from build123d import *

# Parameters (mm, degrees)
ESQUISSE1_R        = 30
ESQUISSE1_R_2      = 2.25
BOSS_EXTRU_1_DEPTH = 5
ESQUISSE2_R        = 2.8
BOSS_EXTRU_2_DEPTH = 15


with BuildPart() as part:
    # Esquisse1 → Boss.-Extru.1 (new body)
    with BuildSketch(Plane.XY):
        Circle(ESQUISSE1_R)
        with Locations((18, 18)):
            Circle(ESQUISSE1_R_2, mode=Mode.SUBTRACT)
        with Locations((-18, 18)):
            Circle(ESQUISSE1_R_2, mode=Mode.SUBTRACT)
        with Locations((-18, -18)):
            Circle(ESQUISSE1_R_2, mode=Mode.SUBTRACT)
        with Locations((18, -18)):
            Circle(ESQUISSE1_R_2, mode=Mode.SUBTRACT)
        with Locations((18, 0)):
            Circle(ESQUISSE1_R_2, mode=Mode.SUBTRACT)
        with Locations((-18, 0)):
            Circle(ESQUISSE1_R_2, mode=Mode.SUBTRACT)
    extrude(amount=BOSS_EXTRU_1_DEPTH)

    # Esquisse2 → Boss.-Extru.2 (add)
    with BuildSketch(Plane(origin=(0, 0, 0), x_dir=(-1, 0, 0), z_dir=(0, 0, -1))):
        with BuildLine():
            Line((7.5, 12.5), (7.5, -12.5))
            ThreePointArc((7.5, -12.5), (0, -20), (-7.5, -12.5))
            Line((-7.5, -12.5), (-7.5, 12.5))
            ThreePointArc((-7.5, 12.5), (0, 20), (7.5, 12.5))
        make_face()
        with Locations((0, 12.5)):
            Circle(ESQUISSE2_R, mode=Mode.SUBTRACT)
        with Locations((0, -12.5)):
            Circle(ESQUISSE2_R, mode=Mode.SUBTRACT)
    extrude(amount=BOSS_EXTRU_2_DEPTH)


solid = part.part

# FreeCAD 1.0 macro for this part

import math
import FreeCAD as App
import Part
import Sketcher

V = App.Vector
Q = App.Units.Quantity

doc = App.newDocument("Part")
body = doc.addObject("PartDesign::Body", "Body")

sketch1 = body.newObject("Sketcher::SketchObject", "Sketch")
sketch1.AttachmentSupport = (doc.getObject("XY_Plane"), [""])
sketch1.MapMode = "FlatFace"
sketch1.addGeometry(Part.Circle(V(0, 0, 0), V(0, 0, 1), 30), False)
sketch1.addGeometry(Part.Circle(V(-18, -18, 0), V(0, 0, 1), 2.2), False)
sketch1.addGeometry(Part.Circle(V(18, -18, 0), V(0, 0, 1), 2.2), False)
sketch1.addGeometry(Part.Circle(V(-18, 0, 0), V(0, 0, 1), 2.2), False)
sketch1.addGeometry(Part.Circle(V(-18, 18, 0), V(0, 0, 1), 2.2), False)
sketch1.addGeometry(Part.Circle(V(18, 0, 0), V(0, 0, 1), 2.2), False)
sketch1.addGeometry(Part.Circle(V(18, 18, 0), V(0, 0, 1), 2.2), False)
sketch1.addConstraint(Sketcher.Constraint("Coincident", 0, 3, -1, 1))
sketch1.addConstraint(Sketcher.Constraint("Equal", 1, 2))
sketch1.addConstraint(Sketcher.Constraint("Equal", 2, 3))
sketch1.addConstraint(Sketcher.Constraint("Equal", 3, 4))
sketch1.addConstraint(Sketcher.Constraint("Equal", 4, 5))
sketch1.addConstraint(Sketcher.Constraint("Equal", 5, 6))
sketch1.addConstraint(Sketcher.Constraint("Symmetric", 2, 3, 4, 3, -1, 1))
sketch1.addConstraint(Sketcher.Constraint("Symmetric", 3, 3, 5, 3, -1, 1))
sketch1.addConstraint(Sketcher.Constraint("Symmetric", 1, 3, 6, 3, -1, 1))
sketch1.addConstraint(Sketcher.Constraint("Symmetric", 1, 3, 2, 3, -2))
sketch1.addConstraint(Sketcher.Constraint("PointOnObject", 3, 3, -1))
sketch1.addConstraint(Sketcher.Constraint("Vertical", 1, 3, 3, 3))
sketch1.addConstraint(Sketcher.Constraint("Diameter", 0, Q("60 mm")))
sketch1.addConstraint(Sketcher.Constraint("Diameter", 1, Q("4.5 mm")))
sketch1.addConstraint(Sketcher.Constraint("DistanceX", 1, 3, -1, 1, Q("18 mm")))
sketch1.addConstraint(Sketcher.Constraint("DistanceY", 1, 3, -1, 1, Q("18 mm")))
pad1 = body.newObject("PartDesign::Pad", "Pad")
pad1.Profile = sketch1
pad1.Length = 5

sketch2 = body.newObject("Sketcher::SketchObject", "Sketch001")
sketch2.AttachmentSupport = (doc.getObject("XY_Plane"), [""])
sketch2.MapMode = "FlatFace"
sketch2.addGeometry(Part.LineSegment(V(-7.5, -12.5, 0), V(-7.5, 12.5, 0)), False)
sketch2.addGeometry(Part.ArcOfCircle(Part.Circle(V(0, 12.5, 0), V(0, 0, 1), 7.5), math.radians(0), math.radians(180)), False)
sketch2.addGeometry(Part.LineSegment(V(7.5, 12.5, 0), V(7.5, -12.5, 0)), False)
sketch2.addGeometry(Part.ArcOfCircle(Part.Circle(V(0, -12.5, 0), V(0, 0, 1), 7.5), math.radians(180), math.radians(360)), False)
sketch2.addGeometry(Part.Circle(V(0, -12.5, 0), V(0, 0, 1), 2.8), False)
sketch2.addGeometry(Part.Circle(V(0, 12.5, 0), V(0, 0, 1), 2.8), False)
sketch2.addConstraint(Sketcher.Constraint("Tangent", 0, 2, 1, 2))
sketch2.addConstraint(Sketcher.Constraint("Tangent", 1, 1, 2, 1))
sketch2.addConstraint(Sketcher.Constraint("Tangent", 2, 2, 3, 2))
sketch2.addConstraint(Sketcher.Constraint("Tangent", 3, 1, 0, 1))
sketch2.addConstraint(Sketcher.Constraint("Vertical", 0))
sketch2.addConstraint(Sketcher.Constraint("Vertical", 2))
sketch2.addConstraint(Sketcher.Constraint("Coincident", 4, 3, 3, 3))
sketch2.addConstraint(Sketcher.Constraint("Coincident", 5, 3, 1, 3))
sketch2.addConstraint(Sketcher.Constraint("Equal", 4, 5))
sketch2.addConstraint(Sketcher.Constraint("Symmetric", 1, 3, 3, 3, -1, 1))
sketch2.addConstraint(Sketcher.Constraint("Diameter", 4, Q("5.6 mm")))
sketch2.addConstraint(Sketcher.Constraint("Radius", 1, Q("7.5 mm")))
sketch2.addConstraint(Sketcher.Constraint("DistanceY", 0, 1, 0, 2, Q("25 mm")))
pad2 = body.newObject("PartDesign::Pad", "Pad001")
pad2.Profile = sketch2
pad2.Length = 15
pad2.Reversed = True

doc.recompute()
